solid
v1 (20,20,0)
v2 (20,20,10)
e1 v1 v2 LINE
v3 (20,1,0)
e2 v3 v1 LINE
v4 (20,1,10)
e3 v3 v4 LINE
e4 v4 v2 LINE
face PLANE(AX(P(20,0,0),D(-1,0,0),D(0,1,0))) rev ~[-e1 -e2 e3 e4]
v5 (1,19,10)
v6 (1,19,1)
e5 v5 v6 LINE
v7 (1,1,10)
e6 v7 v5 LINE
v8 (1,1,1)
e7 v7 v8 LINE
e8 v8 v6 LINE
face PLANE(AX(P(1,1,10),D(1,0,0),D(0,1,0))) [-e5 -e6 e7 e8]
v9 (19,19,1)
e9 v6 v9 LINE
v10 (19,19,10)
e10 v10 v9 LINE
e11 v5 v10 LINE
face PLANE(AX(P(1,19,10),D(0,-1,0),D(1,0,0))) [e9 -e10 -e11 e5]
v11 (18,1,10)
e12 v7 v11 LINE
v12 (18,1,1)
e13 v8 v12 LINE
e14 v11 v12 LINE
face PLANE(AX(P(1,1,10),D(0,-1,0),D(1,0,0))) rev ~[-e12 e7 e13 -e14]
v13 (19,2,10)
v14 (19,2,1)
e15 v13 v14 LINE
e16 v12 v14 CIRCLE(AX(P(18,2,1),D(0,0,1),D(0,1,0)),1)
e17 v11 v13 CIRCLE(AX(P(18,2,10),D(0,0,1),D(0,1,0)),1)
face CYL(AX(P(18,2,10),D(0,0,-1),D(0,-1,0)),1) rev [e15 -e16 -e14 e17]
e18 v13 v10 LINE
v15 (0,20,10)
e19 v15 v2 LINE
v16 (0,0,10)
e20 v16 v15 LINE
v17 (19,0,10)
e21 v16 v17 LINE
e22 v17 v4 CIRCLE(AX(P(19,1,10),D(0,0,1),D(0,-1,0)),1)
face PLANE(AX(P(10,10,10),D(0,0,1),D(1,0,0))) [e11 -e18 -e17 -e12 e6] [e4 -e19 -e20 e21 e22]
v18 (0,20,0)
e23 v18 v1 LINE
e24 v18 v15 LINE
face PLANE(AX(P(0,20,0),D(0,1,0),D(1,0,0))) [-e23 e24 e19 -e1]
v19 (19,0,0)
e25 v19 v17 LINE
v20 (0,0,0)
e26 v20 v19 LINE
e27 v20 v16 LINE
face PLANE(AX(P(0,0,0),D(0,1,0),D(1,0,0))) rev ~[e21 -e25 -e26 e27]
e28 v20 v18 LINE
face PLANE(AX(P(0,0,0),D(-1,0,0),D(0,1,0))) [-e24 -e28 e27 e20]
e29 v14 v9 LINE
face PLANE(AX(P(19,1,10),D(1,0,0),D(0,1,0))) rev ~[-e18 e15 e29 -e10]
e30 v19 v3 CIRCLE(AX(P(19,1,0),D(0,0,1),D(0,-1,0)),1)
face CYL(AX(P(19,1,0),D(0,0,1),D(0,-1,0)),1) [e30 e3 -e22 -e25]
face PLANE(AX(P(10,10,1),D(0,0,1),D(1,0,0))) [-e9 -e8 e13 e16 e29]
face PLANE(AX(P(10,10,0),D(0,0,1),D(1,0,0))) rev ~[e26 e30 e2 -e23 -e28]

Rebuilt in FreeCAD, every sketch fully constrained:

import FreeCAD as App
import Part
import Sketcher
from FreeCAD import Vector
Q = App.Units.Quantity


def edges_at(feature, points):
    """Names of the edges that pass closest to the given points."""
    edges = feature.Shape.Edges
    near = lambda p: min(range(len(edges)), key=lambda i: edges[i].distToShape(Part.Vertex(*p))[0])
    return sorted({f"Edge{near(p) + 1}" for p in points})


def add_polygon(sketch, points):
    """Adds a closed chain of lines whose ends are joined by coincident constraints."""
    first, n = sketch.GeometryCount, len(points)
    for a, b in zip(points, points[1:] + points[:1]):
        sketch.addGeometry(Part.LineSegment(App.Vector(*a, 0), App.Vector(*b, 0)), False)
    for i in range(n):
        sketch.addConstraint(Sketcher.Constraint("Coincident", first + i, 2, first + (i + 1) % n, 1))

doc = App.newDocument("Part")
params = doc.addObject("Spreadsheet::Sheet", "Params")
for row, (alias, value) in enumerate([
    ("sketch1_width", "20 mm"),
    ("pad1_length", "10 mm"),
    ("sketch2_width", "18 mm"),
    ("pocket1_length", "9 mm"),
    ("fillet_radius", "1 mm"),
    ("fillet2_radius", "1 mm"),
], start=1):
    params.set(f"A{row}", alias)
    params.set(f"B{row}", "=" + value)
    params.setAlias(f"B{row}", alias)

body = doc.addObject("PartDesign::Body", "Body")

# Sketch on XY plane
sketch1 = body.newObject("Sketcher::SketchObject", "Sketch")
sketch1.AttachmentSupport = (doc.getObject("XY_Plane"), [""])
sketch1.MapMode = "FlatFace"
add_polygon(sketch1, [(0, 20), (0, 0), (20, 0), (20, 20)])  # lines 0-3
sketch1.addConstraint([
    Sketcher.Constraint("Vertical", 0),
    Sketcher.Constraint("Horizontal", 1),
    Sketcher.Constraint("Vertical", 2),
    Sketcher.Constraint("Horizontal", 3),
    Sketcher.Constraint("Coincident", 0, 2, -1, 1),
    Sketcher.Constraint("Equal", 3, 0),
    Sketcher.Constraint("DistanceX", 1, 1, 1, 2, Q("20 mm")),
])
sketch1.setExpression("Constraints[10]", "Params.sketch1_width")
pad1 = body.newObject("PartDesign::Pad", "Pad")
pad1.Profile = sketch1
pad1.setExpression("Length", "Params.pad1_length")

# Sketch on XY plane
sketch2 = body.newObject("Sketcher::SketchObject", "Sketch001")
sketch2.AttachmentSupport = (doc.getObject("XY_Plane"), [""])
sketch2.MapMode = "FlatFace"
sketch2.AttachmentOffset = App.Placement(Vector(0, 0, 10), App.Rotation())
add_polygon(sketch2, [(1, 19), (1, 1), (19, 1), (19, 19)])  # lines 0-3
sketch2.addConstraint([
    Sketcher.Constraint("Vertical", 0),
    Sketcher.Constraint("Horizontal", 1),
    Sketcher.Constraint("Vertical", 2),
    Sketcher.Constraint("Horizontal", 3),
    Sketcher.Constraint("Equal", 3, 0),
    Sketcher.Constraint("DistanceX", 1, 1, 1, 2, Q("18 mm")),
    Sketcher.Constraint("DistanceX", -1, 1, 0, 2, Q("1 mm")),
    Sketcher.Constraint("DistanceY", -1, 1, 0, 2, Q("1 mm")),
])
sketch2.setExpression("Constraints[9]", "Params.sketch2_width")
pocket1 = body.newObject("PartDesign::Pocket", "Pocket")
pocket1.Profile = sketch2
pocket1.setExpression("Length", "Params.pocket1_length")
doc.recompute()

fillet = body.newObject("PartDesign::Fillet", "Fillet")
fillet.Base = (pocket1, edges_at(pocket1, [(20, 0, 5)]))
fillet.setExpression("Radius", "Params.fillet_radius")
doc.recompute()

fillet2 = body.newObject("PartDesign::Fillet", "Fillet001")
fillet2.Base = (fillet, edges_at(fillet, [(19, 1, 5.5)]))
fillet2.setExpression("Radius", "Params.fillet2_radius")

doc.recompute()
